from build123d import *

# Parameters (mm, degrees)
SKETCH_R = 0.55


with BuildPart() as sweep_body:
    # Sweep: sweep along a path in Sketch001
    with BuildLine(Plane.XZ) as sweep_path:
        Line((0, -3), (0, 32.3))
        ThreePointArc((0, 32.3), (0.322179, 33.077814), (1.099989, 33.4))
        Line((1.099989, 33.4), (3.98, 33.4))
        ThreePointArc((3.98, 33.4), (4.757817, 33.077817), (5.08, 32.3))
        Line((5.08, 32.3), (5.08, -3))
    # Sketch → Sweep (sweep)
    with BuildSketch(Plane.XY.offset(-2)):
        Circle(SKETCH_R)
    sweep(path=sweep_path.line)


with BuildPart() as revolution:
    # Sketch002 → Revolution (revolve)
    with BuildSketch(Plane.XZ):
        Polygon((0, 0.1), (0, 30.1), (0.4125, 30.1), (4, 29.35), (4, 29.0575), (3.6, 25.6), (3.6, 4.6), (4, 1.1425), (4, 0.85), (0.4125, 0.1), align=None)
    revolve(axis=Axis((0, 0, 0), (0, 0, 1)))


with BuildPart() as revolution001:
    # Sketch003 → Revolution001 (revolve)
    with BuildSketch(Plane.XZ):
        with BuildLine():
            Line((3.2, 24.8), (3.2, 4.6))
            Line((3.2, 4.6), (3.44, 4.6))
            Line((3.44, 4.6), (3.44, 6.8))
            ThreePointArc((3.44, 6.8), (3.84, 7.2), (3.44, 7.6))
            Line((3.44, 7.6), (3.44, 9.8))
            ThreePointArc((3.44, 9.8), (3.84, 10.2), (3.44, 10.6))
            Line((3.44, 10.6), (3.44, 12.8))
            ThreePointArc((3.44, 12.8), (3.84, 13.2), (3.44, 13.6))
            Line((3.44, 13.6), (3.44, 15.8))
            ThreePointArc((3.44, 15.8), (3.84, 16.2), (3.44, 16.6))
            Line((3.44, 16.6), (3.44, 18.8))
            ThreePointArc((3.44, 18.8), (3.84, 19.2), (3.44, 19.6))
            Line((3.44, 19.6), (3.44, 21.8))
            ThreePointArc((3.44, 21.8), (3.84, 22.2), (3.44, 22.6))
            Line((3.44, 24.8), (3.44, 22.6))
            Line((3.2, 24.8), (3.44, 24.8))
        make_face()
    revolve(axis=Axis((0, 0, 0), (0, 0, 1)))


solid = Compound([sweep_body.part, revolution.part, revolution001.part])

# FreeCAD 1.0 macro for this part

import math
import FreeCAD as App
import Part
import Sketcher

V = App.Vector
Q = App.Units.Quantity

doc = App.newDocument("Part")
body = doc.addObject("PartDesign::Body", "Body")

# Sketch on XY plane
sketch1 = doc.addObject("Sketcher::SketchObject", "Sketch")
body.addObject(sketch1)
sketch1.AttachmentSupport = (doc.XY_Plane, [""])
sketch1.MapMode = "FlatFace"
sketch1.AttachmentOffset = App.Placement(V(0, 0, -2), App.Rotation())
sketch1.addGeometry(Part.Circle(V(0, 0, 0), V(0, 0, 1), 0.6), False)
sketch1.addConstraint([
    Sketcher.Constraint("Coincident", 0, 3, -1, 1),
    Sketcher.Constraint("Diameter", 0, Q("1.1 mm")),
])

# Sketch on XZ plane
sketch2 = doc.addObject("Sketcher::SketchObject", "Sketch001")
body.addObject(sketch2)
sketch2.AttachmentSupport = (doc.XZ_Plane, [""])
sketch2.MapMode = "FlatFace"
sketch2.addGeometry([
    Part.LineSegment(V(0, -3, 0), V(0, 32.3, 0)),  # 0
    Part.ArcOfCircle(Part.Circle(V(1.1, 32.3, 0), V(0, 0, 1), 1.1), math.radians(90), math.radians(180)),  # 1
    Part.LineSegment(V(1.1, 33.4, 0), V(4, 33.4, 0)),  # 2
    Part.ArcOfCircle(Part.Circle(V(4, 32.3, 0), V(0, 0, 1), 1.1), math.radians(0), math.radians(90)),  # 3
    Part.LineSegment(V(5.1, 32.3, 0), V(5.1, -3, 0)),  # 4
], False)
sketch2.addConstraint([
    Sketcher.Constraint("Tangent", 0, 2, 1, 2),
    Sketcher.Constraint("Coincident", 1, 1, 2, 1),
    Sketcher.Constraint("Tangent", 2, 2, 3, 2),
    Sketcher.Constraint("Tangent", 3, 1, 4, 1),
    Sketcher.Constraint("Vertical", 0),
    Sketcher.Constraint("Horizontal", 2),
    Sketcher.Constraint("Vertical", 4),
    Sketcher.Constraint("Equal", 1, 3),
    Sketcher.Constraint("PointOnObject", 0, 1, -2),
    Sketcher.Constraint("Horizontal", 0, 1, 4, 2),
    Sketcher.Constraint("Radius", 1, Q("1.1 mm")),
    Sketcher.Constraint("DistanceY", 0, 1, 0, 2, Q("35.3 mm")),
    Sketcher.Constraint("DistanceY", 0, 1, -1, 1, Q("3 mm")),
    Sketcher.Constraint("DistanceX", -1, 1, 3, 3, Q("3.979998 mm")),
    Sketcher.Constraint("DistanceX", 2, 1, 2, 2, Q("2.880011 mm")),
])
doc.recompute()

additivepipe = doc.addObject("PartDesign::AdditivePipe", "AdditivePipe")
body.addObject(additivepipe)
additivepipe.Profile = sketch1
additivepipe.Spine = (sketch2, ["Edge1", "Edge2", "Edge3", "Edge4", "Edge5"])
body2 = doc.addObject("PartDesign::Body", "Body001")

# Sketch on XZ plane
sketch3 = doc.addObject("Sketcher::SketchObject", "Sketch002")
body2.addObject(sketch3)
sketch3.AttachmentSupport = (doc.getObject("XZ_Plane001"), [""])
sketch3.MapMode = "FlatFace"
sketch3.addGeometry([
    Part.LineSegment(V(0, 30.1, 0), V(0, 0.1, 0)),  # 0
    Part.LineSegment(V(0, 0.1, 0), V(0.41, 0.1, 0)),  # 1
    Part.LineSegment(V(0.41, 0.1, 0), V(4, 0.85, 0)),  # 2
    Part.LineSegment(V(4, 0.85, 0), V(4, 1.14, 0)),  # 3
    Part.LineSegment(V(4, 1.14, 0), V(3.6, 4.6, 0)),  # 4
    Part.LineSegment(V(3.6, 4.6, 0), V(3.6, 25.6, 0)),  # 5
    Part.LineSegment(V(3.6, 25.6, 0), V(4, 29.06, 0)),  # 6
    Part.LineSegment(V(4, 29.06, 0), V(4, 29.35, 0)),  # 7
    Part.LineSegment(V(4, 29.35, 0), V(0.41, 30.1, 0)),  # 8
    Part.LineSegment(V(0.41, 30.1, 0), V(0, 30.1, 0)),  # 9
], False)
sketch3.addConstraint([
    Sketcher.Constraint("Coincident", 0, 2, 1, 1),
    Sketcher.Constraint("Coincident", 1, 2, 2, 1),
    Sketcher.Constraint("Coincident", 2, 2, 3, 1),
    Sketcher.Constraint("Coincident", 3, 2, 4, 1),
    Sketcher.Constraint("Coincident", 4, 2, 5, 1),
    Sketcher.Constraint("Coincident", 5, 2, 6, 1),
    Sketcher.Constraint("Coincident", 6, 2, 7, 1),
    Sketcher.Constraint("Coincident", 7, 2, 8, 1),
    Sketcher.Constraint("Coincident", 8, 2, 9, 1),
    Sketcher.Constraint("Coincident", 9, 2, 0, 1),
    Sketcher.Constraint("Vertical", 0),
    Sketcher.Constraint("Horizontal", 1),
    Sketcher.Constraint("Vertical", 3),
    Sketcher.Constraint("Vertical", 5),
    Sketcher.Constraint("Vertical", 7),
    Sketcher.Constraint("Horizontal", 9),
    Sketcher.Constraint("PointOnObject", 0, 2, -2),
    Sketcher.Constraint("Vertical", 3, 2, 6, 2),
    Sketcher.Constraint("Vertical", 1, 2, 8, 2),
    Sketcher.Constraint("Equal", 3, 7),
    Sketcher.Constraint("Equal", 4, 6),
    Sketcher.Constraint("Equal", 2, 8),
    Sketcher.Constraint("DistanceY", 0, 2, 0, 1, Q("30 mm")),
    Sketcher.Constraint("DistanceY", 5, 1, 5, 2, Q("21 mm")),
    Sketcher.Constraint("DistanceX", -1, 1, 2, 2, Q("4 mm")),
    Sketcher.Constraint("DistanceY", -1, 1, 0, 2, Q("0.1 mm")),
    Sketcher.Constraint("DistanceX", -1, 1, 4, 2, Q("3.6 mm")),
    Sketcher.Constraint("DistanceY", 2, 2, 7, 2, Q("28.5 mm")),
    Sketcher.Constraint("DistanceX", 1, 1, 1, 2, Q("0.4125 mm")),
    Sketcher.Constraint("DistanceY", 3, 1, 3, 2, Q("0.2925 mm")),
])
revolution = doc.addObject("PartDesign::Revolution", "Revolution")
body2.addObject(revolution)
revolution.Profile = sketch3
revolution.ReferenceAxis = (sketch3, ["V_Axis"])
revolution.Angle = 360
body3 = doc.addObject("PartDesign::Body", "Body002")

# Sketch on XZ plane
sketch4 = doc.addObject("Sketcher::SketchObject", "Sketch003")
body3.addObject(sketch4)
sketch4.AttachmentSupport = (doc.getObject("XZ_Plane002"), [""])
sketch4.MapMode = "FlatFace"
sketch4.addGeometry([
    Part.LineSegment(V(3.2, 24.8, 0), V(3.2, 4.6, 0)),  # 0
    Part.LineSegment(V(3.2, 4.6, 0), V(3.44, 4.6, 0)),  # 1
    Part.LineSegment(V(3.44, 4.6, 0), V(3.44, 6.8, 0)),  # 2
    Part.ArcOfCircle(Part.Circle(V(3.44, 7.2, 0), V(0, 0, 1), 0.4), math.radians(-90), math.radians(90)),  # 3
    Part.LineSegment(V(3.44, 7.6, 0), V(3.44, 9.8, 0)),  # 4
    Part.ArcOfCircle(Part.Circle(V(3.44, 10.2, 0), V(0, 0, 1), 0.4), math.radians(-90), math.radians(90)),  # 5
    Part.LineSegment(V(3.44, 10.6, 0), V(3.44, 12.8, 0)),  # 6
    Part.ArcOfCircle(Part.Circle(V(3.44, 13.2, 0), V(0, 0, 1), 0.4), math.radians(-90), math.radians(90)),  # 7
    Part.LineSegment(V(3.44, 13.6, 0), V(3.44, 15.8, 0)),  # 8
    Part.ArcOfCircle(Part.Circle(V(3.44, 16.2, 0), V(0, 0, 1), 0.4), math.radians(-90), math.radians(90)),  # 9
    Part.LineSegment(V(3.44, 16.6, 0), V(3.44, 18.8, 0)),  # 10
    Part.ArcOfCircle(Part.Circle(V(3.44, 19.2, 0), V(0, 0, 1), 0.4), math.radians(-90), math.radians(90)),  # 11
    Part.LineSegment(V(3.44, 19.6, 0), V(3.44, 21.8, 0)),  # 12
    Part.ArcOfCircle(Part.Circle(V(3.44, 22.2, 0), V(0, 0, 1), 0.4), math.radians(-90), math.radians(90)),  # 13
    Part.LineSegment(V(3.44, 22.6, 0), V(3.44, 24.8, 0)),  # 14
    Part.LineSegment(V(3.44, 24.8, 0), V(3.2, 24.8, 0)),  # 15
], False)
sketch4.addConstraint([
    Sketcher.Constraint("Coincident", 0, 2, 1, 1),
    Sketcher.Constraint("Coincident", 1, 2, 2, 1),
    Sketcher.Constraint("Coincident", 2, 2, 3, 1),
    Sketcher.Constraint("Coincident", 3, 2, 4, 1),
    Sketcher.Constraint("Coincident", 4, 2, 5, 1),
    Sketcher.Constraint("Coincident", 5, 2, 6, 1),
    Sketcher.Constraint("Coincident", 6, 2, 7, 1),
    Sketcher.Constraint("Coincident", 7, 2, 8, 1),
    Sketcher.Constraint("Coincident", 8, 2, 9, 1),
    Sketcher.Constraint("Coincident", 9, 2, 10, 1),
    Sketcher.Constraint("Coincident", 10, 2, 11, 1),
    Sketcher.Constraint("Coincident", 11, 2, 12, 1),
    Sketcher.Constraint("Coincident", 12, 2, 13, 1),
    Sketcher.Constraint("Coincident", 13, 2, 14, 1),
    Sketcher.Constraint("Coincident", 14, 2, 15, 1),
    Sketcher.Constraint("Coincident", 15, 2, 0, 1),
    Sketcher.Constraint("Vertical", 0),
    Sketcher.Constraint("Horizontal", 1),
    Sketcher.Constraint("Vertical", 2),
    Sketcher.Constraint("Vertical", 4),
    Sketcher.Constraint("Vertical", 6),
    Sketcher.Constraint("Vertical", 8),
    Sketcher.Constraint("Vertical", 10),
    Sketcher.Constraint("Vertical", 12),
    Sketcher.Constraint("Vertical", 14),
    Sketcher.Constraint("Horizontal", 15),
    Sketcher.Constraint("Equal", 3, 5),
    Sketcher.Constraint("Equal", 5, 7),
    Sketcher.Constraint("Equal", 7, 9),
    Sketcher.Constraint("Equal", 9, 11),
    Sketcher.Constraint("Equal", 11, 13),
    Sketcher.Constraint("Vertical", 3, 3, 5, 3),
    Sketcher.Constraint("Vertical", 5, 3, 7, 3),
    Sketcher.Constraint("Vertical", 7, 3, 9, 3),
    Sketcher.Constraint("Vertical", 9, 3, 11, 3),
    Sketcher.Constraint("Vertical", 11, 3, 13, 3),
    Sketcher.Constraint("Vertical", 13, 3, 1, 2),
    Sketcher.Constraint("Vertical", 2, 2, 3, 2),
    Sketcher.Constraint("Vertical", 4, 2, 5, 2),
    Sketcher.Constraint("Vertical", 6, 2, 7, 2),
    Sketcher.Constraint("Vertical", 8, 2, 9, 2),
    Sketcher.Constraint("Vertical", 10, 2, 11, 2),
    Sketcher.Constraint("Vertical", 12, 2, 13, 2),
    Sketcher.Constraint("Equal", 2, 4),
    Sketcher.Constraint("Equal", 4, 6),
    Sketcher.Constraint("Equal", 6, 8),
    Sketcher.Constraint("Equal", 8, 10),
    Sketcher.Constraint("Equal", 10, 12),
    Sketcher.Constraint("Equal", 12, 14),
    Sketcher.Constraint("Radius", 3, Q("0.4 mm")),
    Sketcher.Constraint("DistanceY", 0, 2, 0, 1, Q("20.2 mm")),
    Sketcher.Constraint("DistanceX", 1, 1, 1, 2, Q("0.24 mm")),
    Sketcher.Constraint("DistanceY", -1, 1, 3, 3, Q("7.2 mm")),
    Sketcher.Constraint("DistanceX", -1, 1, 0, 2, Q("3.2 mm")),
])
revolution2 = doc.addObject("PartDesign::Revolution", "Revolution001")
body3.addObject(revolution2)
revolution2.Profile = sketch4
revolution2.ReferenceAxis = (sketch4, ["V_Axis"])
revolution2.Angle = 360

doc.recompute()
